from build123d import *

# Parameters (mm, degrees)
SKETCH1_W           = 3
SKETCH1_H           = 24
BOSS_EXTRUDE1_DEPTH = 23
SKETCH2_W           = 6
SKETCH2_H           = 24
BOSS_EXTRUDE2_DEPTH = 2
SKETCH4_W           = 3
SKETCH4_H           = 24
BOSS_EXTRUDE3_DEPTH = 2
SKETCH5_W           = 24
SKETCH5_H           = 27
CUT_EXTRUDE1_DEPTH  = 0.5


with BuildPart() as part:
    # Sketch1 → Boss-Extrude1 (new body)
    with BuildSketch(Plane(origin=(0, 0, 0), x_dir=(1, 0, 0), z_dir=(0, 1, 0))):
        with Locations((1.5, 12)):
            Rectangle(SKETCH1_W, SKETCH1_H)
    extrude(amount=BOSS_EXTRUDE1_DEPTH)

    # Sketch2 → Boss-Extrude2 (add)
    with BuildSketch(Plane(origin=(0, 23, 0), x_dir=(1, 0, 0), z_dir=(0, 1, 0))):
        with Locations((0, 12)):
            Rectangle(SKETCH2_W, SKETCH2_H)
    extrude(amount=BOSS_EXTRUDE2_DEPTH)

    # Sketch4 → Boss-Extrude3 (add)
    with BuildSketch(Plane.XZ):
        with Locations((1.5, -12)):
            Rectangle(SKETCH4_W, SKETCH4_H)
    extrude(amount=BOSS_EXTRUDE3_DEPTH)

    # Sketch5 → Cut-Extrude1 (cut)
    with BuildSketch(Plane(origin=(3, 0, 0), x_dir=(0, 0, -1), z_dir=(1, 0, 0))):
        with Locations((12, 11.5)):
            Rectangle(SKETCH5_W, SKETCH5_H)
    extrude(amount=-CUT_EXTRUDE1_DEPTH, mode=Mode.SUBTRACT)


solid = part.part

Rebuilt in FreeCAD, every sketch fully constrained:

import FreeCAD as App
import Part
import Sketcher
from FreeCAD import Vector
Q = App.Units.Quantity

doc = App.newDocument("Part")
body = doc.addObject("PartDesign::Body", "Body")

# Sketch on XZ plane
sketch1 = body.newObject("Sketcher::SketchObject", "Sketch")
sketch1.AttachmentSupport = (doc.getObject("XZ_Plane"), [""])
sketch1.MapMode = "FlatFace"
sketch1.addGeometry([
    Part.LineSegment(Vector(0, -24, 0), Vector(0, 0, 0)),
    Part.LineSegment(Vector(0, 0, 0), Vector(3, 0, 0)),
    Part.LineSegment(Vector(3, 0, 0), Vector(3, -24, 0)),
    Part.LineSegment(Vector(3, -24, 0), Vector(0, -24, 0)),
], False)
sketch1.addConstraint([
    Sketcher.Constraint("Coincident", 0, 2, 1, 1),
    Sketcher.Constraint("Coincident", 1, 2, 2, 1),
    Sketcher.Constraint("Coincident", 2, 2, 3, 1),
    Sketcher.Constraint("Coincident", 3, 2, 0, 1),
    Sketcher.Constraint("Vertical", 0),
    Sketcher.Constraint("Horizontal", 1),
    Sketcher.Constraint("Vertical", 2),
    Sketcher.Constraint("Horizontal", 3),
    Sketcher.Constraint("Coincident", 0, 2, -1, 1),
    Sketcher.Constraint("DistanceX", 1, 1, 1, 2, Q("3 mm")),
    Sketcher.Constraint("DistanceY", 0, 1, 0, 2, Q("24 mm")),
])
pad1 = body.newObject("PartDesign::Pad", "Pad")
pad1.Profile = sketch1
pad1.Length = 23
pad1.Reversed = True

# Sketch on XZ plane
sketch2 = body.newObject("Sketcher::SketchObject", "Sketch001")
sketch2.AttachmentSupport = (doc.getObject("XZ_Plane"), [""])
sketch2.MapMode = "FlatFace"
sketch2.AttachmentOffset = App.Placement(Vector(0, 0, -23), App.Rotation())
sketch2.addGeometry([
    Part.LineSegment(Vector(-3, -24, 0), Vector(-3, 0, 0)),
    Part.LineSegment(Vector(-3, 0, 0), Vector(3, 0, 0)),
    Part.LineSegment(Vector(3, 0, 0), Vector(3, -24, 0)),
    Part.LineSegment(Vector(3, -24, 0), Vector(-3, -24, 0)),
], False)
sketch2.addConstraint([
    Sketcher.Constraint("Coincident", 0, 2, 1, 1),
    Sketcher.Constraint("Coincident", 1, 2, 2, 1),
    Sketcher.Constraint("Coincident", 2, 2, 3, 1),
    Sketcher.Constraint("Coincident", 3, 2, 0, 1),
    Sketcher.Constraint("Vertical", 0),
    Sketcher.Constraint("Horizontal", 1),
    Sketcher.Constraint("Vertical", 2),
    Sketcher.Constraint("Horizontal", 3),
    Sketcher.Constraint("Symmetric", 0, 2, 1, 2, -1, 1),
    Sketcher.Constraint("DistanceX", 1, 1, 1, 2, Q("6 mm")),
    Sketcher.Constraint("DistanceY", 0, 1, 0, 2, Q("24 mm")),
])
pad2 = body.newObject("PartDesign::Pad", "Pad001")
pad2.Profile = sketch2
pad2.Length = 2
pad2.Reversed = True

# Sketch on XZ plane
sketch3 = body.newObject("Sketcher::SketchObject", "Sketch002")
sketch3.AttachmentSupport = (doc.getObject("XZ_Plane"), [""])
sketch3.MapMode = "FlatFace"
sketch3.addGeometry([
    Part.LineSegment(Vector(0, 0, 0), Vector(0, -24, 0)),
    Part.LineSegment(Vector(0, -24, 0), Vector(3, -24, 0)),
    Part.LineSegment(Vector(3, -24, 0), Vector(3, 0, 0)),
    Part.LineSegment(Vector(3, 0, 0), Vector(0, 0, 0)),
], False)
sketch3.addConstraint([
    Sketcher.Constraint("Coincident", 0, 2, 1, 1),
    Sketcher.Constraint("Coincident", 1, 2, 2, 1),
    Sketcher.Constraint("Coincident", 2, 2, 3, 1),
    Sketcher.Constraint("Coincident", 3, 2, 0, 1),
    Sketcher.Constraint("Vertical", 0),
    Sketcher.Constraint("Horizontal", 1),
    Sketcher.Constraint("Vertical", 2),
    Sketcher.Constraint("Horizontal", 3),
    Sketcher.Constraint("Coincident", 3, 2, -1, 1),
    Sketcher.Constraint("DistanceX", 1, 1, 1, 2, Q("3 mm")),
    Sketcher.Constraint("DistanceY", 0, 2, 0, 1, Q("24 mm")),
])
pad3 = body.newObject("PartDesign::Pad", "Pad002")
pad3.Profile = sketch3
pad3.Length = 2

# Sketch on YZ plane
sketch4 = body.newObject("Sketcher::SketchObject", "Sketch003")
sketch4.AttachmentSupport = (doc.getObject("YZ_Plane"), [""])
sketch4.MapMode = "FlatFace"
sketch4.AttachmentOffset = App.Placement(Vector(0, 0, 3), App.Rotation())
sketch4.addGeometry([
    Part.LineSegment(Vector(25, 0, 0), Vector(-2, 0, 0)),
    Part.LineSegment(Vector(-2, 0, 0), Vector(-2, -24, 0)),
    Part.LineSegment(Vector(-2, -24, 0), Vector(25, -24, 0)),
    Part.LineSegment(Vector(25, -24, 0), Vector(25, 0, 0)),
], False)
sketch4.addConstraint([
    Sketcher.Constraint("Coincident", 0, 2, 1, 1),
    Sketcher.Constraint("Coincident", 1, 2, 2, 1),
    Sketcher.Constraint("Coincident", 2, 2, 3, 1),
    Sketcher.Constraint("Coincident", 3, 2, 0, 1),
    Sketcher.Constraint("Horizontal", 0),
    Sketcher.Constraint("Vertical", 1),
    Sketcher.Constraint("Horizontal", 2),
    Sketcher.Constraint("Vertical", 3),
    Sketcher.Constraint("PointOnObject", 0, 2, -1),
    Sketcher.Constraint("DistanceX", 0, 2, 0, 1, Q("27 mm")),
    Sketcher.Constraint("DistanceY", 1, 2, 1, 1, Q("24 mm")),
    Sketcher.Constraint("DistanceX", 0, 2, -1, 1, Q("2 mm")),
])
pocket1 = body.newObject("PartDesign::Pocket", "Pocket")
pocket1.Profile = sketch4
pocket1.Length = 0.5

doc.recompute()
